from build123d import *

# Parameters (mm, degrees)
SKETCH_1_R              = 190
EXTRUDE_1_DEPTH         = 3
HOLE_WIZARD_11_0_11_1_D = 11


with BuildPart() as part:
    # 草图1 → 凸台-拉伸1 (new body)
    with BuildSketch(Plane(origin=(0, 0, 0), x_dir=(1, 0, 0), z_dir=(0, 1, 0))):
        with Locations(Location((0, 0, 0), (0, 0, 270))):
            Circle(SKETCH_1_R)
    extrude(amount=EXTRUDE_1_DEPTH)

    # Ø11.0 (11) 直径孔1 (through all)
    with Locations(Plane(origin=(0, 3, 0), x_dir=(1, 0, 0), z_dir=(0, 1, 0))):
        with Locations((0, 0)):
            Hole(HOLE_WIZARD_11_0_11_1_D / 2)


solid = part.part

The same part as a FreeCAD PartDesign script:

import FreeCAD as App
import Part
import Sketcher
from FreeCAD import Vector

doc = App.newDocument("Part")
body = doc.addObject("PartDesign::Body", "Body")

sketch1 = body.newObject("Sketcher::SketchObject", "Sketch")
sketch1.AttachmentSupport = (doc.getObject("XZ_Plane"), [""])
sketch1.MapMode = "FlatFace"
sketch1.addGeometry(Part.Circle(Vector(0, 0, 0), Vector(0, 0, 1), 190), False)
sketch1.addConstraint(Sketcher.Constraint("Coincident", 0, 3, -1, 1))
sketch1.addConstraint(Sketcher.Constraint("Diameter", 0, 380.0))
pad1 = body.newObject("PartDesign::Pad", "Pad")
pad1.Profile = sketch1
pad1.Length = 3
pad1.Reversed = True

sketch2 = body.newObject("Sketcher::SketchObject", "Sketch001")
sketch2.AttachmentSupport = (doc.getObject("XZ_Plane"), [""])
sketch2.MapMode = "FlatFace"
sketch2.AttachmentOffset = App.Placement(Vector(0, 0, -3), App.Rotation())
sketch2.addGeometry(Part.Circle(Vector(0, 0, 0), Vector(0, 0, 1), 6), False)
sketch2.addConstraint(Sketcher.Constraint("Coincident", 0, 3, -1, 1))
sketch2.addConstraint(Sketcher.Constraint("Diameter", 0, 11.0))
doc.recompute()
hole = body.newObject("PartDesign::Hole", "Hole")
hole.Profile = sketch2
hole.ThreadType = "None"
hole.Diameter = 11
hole.DepthType = "ThroughAll"
hole.Reversed = True

doc.recompute()
